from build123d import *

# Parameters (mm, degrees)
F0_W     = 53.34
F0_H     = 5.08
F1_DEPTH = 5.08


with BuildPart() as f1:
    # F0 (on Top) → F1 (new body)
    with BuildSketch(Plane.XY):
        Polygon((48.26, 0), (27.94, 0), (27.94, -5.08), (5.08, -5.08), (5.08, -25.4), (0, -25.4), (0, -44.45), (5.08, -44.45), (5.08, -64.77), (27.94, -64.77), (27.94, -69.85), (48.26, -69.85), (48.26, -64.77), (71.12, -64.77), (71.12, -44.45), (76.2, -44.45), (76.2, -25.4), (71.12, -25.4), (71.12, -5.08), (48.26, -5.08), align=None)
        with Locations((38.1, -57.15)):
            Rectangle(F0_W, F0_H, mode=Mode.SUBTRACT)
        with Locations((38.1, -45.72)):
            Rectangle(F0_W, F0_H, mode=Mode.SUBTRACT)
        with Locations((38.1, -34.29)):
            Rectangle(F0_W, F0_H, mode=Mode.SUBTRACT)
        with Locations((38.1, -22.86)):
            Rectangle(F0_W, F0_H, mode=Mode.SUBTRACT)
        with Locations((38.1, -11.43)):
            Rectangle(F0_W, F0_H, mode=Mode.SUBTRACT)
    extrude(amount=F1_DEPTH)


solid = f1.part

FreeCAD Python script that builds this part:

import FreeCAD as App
import Part
import Sketcher
from FreeCAD import Vector
Q = App.Units.Quantity

doc = App.newDocument("Part")
body = doc.addObject("PartDesign::Body", "Body")

# Sketch on XY plane
sketch1 = body.newObject("Sketcher::SketchObject", "Sketch")
sketch1.AttachmentSupport = (doc.getObject("XY_Plane"), [""])
sketch1.MapMode = "FlatFace"
sketch1.addGeometry(Part.LineSegment(Vector(48, 0, 0), Vector(28, 0, 0)), False)
sketch1.addGeometry(Part.LineSegment(Vector(28, 0, 0), Vector(28, -5, 0)), False)
sketch1.addGeometry(Part.LineSegment(Vector(28, -5, 0), Vector(5, -5, 0)), False)
sketch1.addGeometry(Part.LineSegment(Vector(5, -5, 0), Vector(5, -25, 0)), False)
sketch1.addGeometry(Part.LineSegment(Vector(5, -25, 0), Vector(0, -25, 0)), False)
sketch1.addGeometry(Part.LineSegment(Vector(0, -25, 0), Vector(0, -44, 0)), False)
sketch1.addGeometry(Part.LineSegment(Vector(0, -44, 0), Vector(5, -44, 0)), False)
sketch1.addGeometry(Part.LineSegment(Vector(5, -44, 0), Vector(5, -65, 0)), False)
sketch1.addGeometry(Part.LineSegment(Vector(5, -65, 0), Vector(28, -65, 0)), False)
sketch1.addGeometry(Part.LineSegment(Vector(28, -65, 0), Vector(28, -70, 0)), False)
sketch1.addGeometry(Part.LineSegment(Vector(28, -70, 0), Vector(48, -70, 0)), False)
sketch1.addGeometry(Part.LineSegment(Vector(48, -70, 0), Vector(48, -65, 0)), False)
sketch1.addGeometry(Part.LineSegment(Vector(48, -65, 0), Vector(71, -65, 0)), False)
sketch1.addGeometry(Part.LineSegment(Vector(71, -65, 0), Vector(71, -44, 0)), False)
sketch1.addGeometry(Part.LineSegment(Vector(71, -44, 0), Vector(76, -44, 0)), False)
sketch1.addGeometry(Part.LineSegment(Vector(76, -44, 0), Vector(76, -25, 0)), False)
sketch1.addGeometry(Part.LineSegment(Vector(76, -25, 0), Vector(71, -25, 0)), False)
sketch1.addGeometry(Part.LineSegment(Vector(71, -25, 0), Vector(71, -5, 0)), False)
sketch1.addGeometry(Part.LineSegment(Vector(71, -5, 0), Vector(48, -5, 0)), False)
sketch1.addGeometry(Part.LineSegment(Vector(48, -5, 0), Vector(48, 0, 0)), False)
sketch1.addGeometry(Part.LineSegment(Vector(65, -60, 0), Vector(11, -60, 0)), False)
sketch1.addGeometry(Part.LineSegment(Vector(11, -60, 0), Vector(11, -55, 0)), False)
sketch1.addGeometry(Part.LineSegment(Vector(11, -55, 0), Vector(65, -55, 0)), False)
sketch1.addGeometry(Part.LineSegment(Vector(65, -55, 0), Vector(65, -60, 0)), False)
sketch1.addGeometry(Part.LineSegment(Vector(65, -48, 0), Vector(11, -48, 0)), False)
sketch1.addGeometry(Part.LineSegment(Vector(11, -48, 0), Vector(11, -43, 0)), False)
sketch1.addGeometry(Part.LineSegment(Vector(11, -43, 0), Vector(65, -43, 0)), False)
sketch1.addGeometry(Part.LineSegment(Vector(65, -43, 0), Vector(65, -48, 0)), False)
sketch1.addGeometry(Part.LineSegment(Vector(65, -37, 0), Vector(11, -37, 0)), False)
sketch1.addGeometry(Part.LineSegment(Vector(11, -37, 0), Vector(11, -32, 0)), False)
sketch1.addGeometry(Part.LineSegment(Vector(11, -32, 0), Vector(65, -32, 0)), False)
sketch1.addGeometry(Part.LineSegment(Vector(65, -32, 0), Vector(65, -37, 0)), False)
sketch1.addGeometry(Part.LineSegment(Vector(65, -25, 0), Vector(11, -25, 0)), False)
sketch1.addGeometry(Part.LineSegment(Vector(11, -25, 0), Vector(11, -20, 0)), False)
sketch1.addGeometry(Part.LineSegment(Vector(11, -20, 0), Vector(65, -20, 0)), False)
sketch1.addGeometry(Part.LineSegment(Vector(65, -20, 0), Vector(65, -25, 0)), False)
sketch1.addGeometry(Part.LineSegment(Vector(65, -14, 0), Vector(11, -14, 0)), False)
sketch1.addGeometry(Part.LineSegment(Vector(11, -14, 0), Vector(11, -9, 0)), False)
sketch1.addGeometry(Part.LineSegment(Vector(11, -9, 0), Vector(65, -9, 0)), False)
sketch1.addGeometry(Part.LineSegment(Vector(65, -9, 0), Vector(65, -14, 0)), False)
sketch1.addConstraint(Sketcher.Constraint("Coincident", 0, 2, 1, 1))
sketch1.addConstraint(Sketcher.Constraint("Coincident", 1, 2, 2, 1))
sketch1.addConstraint(Sketcher.Constraint("Coincident", 2, 2, 3, 1))
sketch1.addConstraint(Sketcher.Constraint("Coincident", 3, 2, 4, 1))
sketch1.addConstraint(Sketcher.Constraint("Coincident", 4, 2, 5, 1))
sketch1.addConstraint(Sketcher.Constraint("Coincident", 5, 2, 6, 1))
sketch1.addConstraint(Sketcher.Constraint("Coincident", 6, 2, 7, 1))
sketch1.addConstraint(Sketcher.Constraint("Coincident", 7, 2, 8, 1))
sketch1.addConstraint(Sketcher.Constraint("Coincident", 8, 2, 9, 1))
sketch1.addConstraint(Sketcher.Constraint("Coincident", 9, 2, 10, 1))
sketch1.addConstraint(Sketcher.Constraint("Coincident", 10, 2, 11, 1))
sketch1.addConstraint(Sketcher.Constraint("Coincident", 11, 2, 12, 1))
sketch1.addConstraint(Sketcher.Constraint("Coincident", 12, 2, 13, 1))
sketch1.addConstraint(Sketcher.Constraint("Coincident", 13, 2, 14, 1))
sketch1.addConstraint(Sketcher.Constraint("Coincident", 14, 2, 15, 1))
sketch1.addConstraint(Sketcher.Constraint("Coincident", 15, 2, 16, 1))
sketch1.addConstraint(Sketcher.Constraint("Coincident", 16, 2, 17, 1))
sketch1.addConstraint(Sketcher.Constraint("Coincident", 17, 2, 18, 1))
sketch1.addConstraint(Sketcher.Constraint("Coincident", 18, 2, 19, 1))
sketch1.addConstraint(Sketcher.Constraint("Coincident", 19, 2, 0, 1))
sketch1.addConstraint(Sketcher.Constraint("Coincident", 20, 2, 21, 1))
sketch1.addConstraint(Sketcher.Constraint("Coincident", 21, 2, 22, 1))
sketch1.addConstraint(Sketcher.Constraint("Coincident", 22, 2, 23, 1))
sketch1.addConstraint(Sketcher.Constraint("Coincident", 23, 2, 20, 1))
sketch1.addConstraint(Sketcher.Constraint("Coincident", 24, 2, 25, 1))
sketch1.addConstraint(Sketcher.Constraint("Coincident", 25, 2, 26, 1))
sketch1.addConstraint(Sketcher.Constraint("Coincident", 26, 2, 27, 1))
sketch1.addConstraint(Sketcher.Constraint("Coincident", 27, 2, 24, 1))
sketch1.addConstraint(Sketcher.Constraint("Coincident", 28, 2, 29, 1))
sketch1.addConstraint(Sketcher.Constraint("Coincident", 29, 2, 30, 1))
sketch1.addConstraint(Sketcher.Constraint("Coincident", 30, 2, 31, 1))
sketch1.addConstraint(Sketcher.Constraint("Coincident", 31, 2, 28, 1))
sketch1.addConstraint(Sketcher.Constraint("Coincident", 32, 2, 33, 1))
sketch1.addConstraint(Sketcher.Constraint("Coincident", 33, 2, 34, 1))
sketch1.addConstraint(Sketcher.Constraint("Coincident", 34, 2, 35, 1))
sketch1.addConstraint(Sketcher.Constraint("Coincident", 35, 2, 32, 1))
sketch1.addConstraint(Sketcher.Constraint("Coincident", 36, 2, 37, 1))
sketch1.addConstraint(Sketcher.Constraint("Coincident", 37, 2, 38, 1))
sketch1.addConstraint(Sketcher.Constraint("Coincident", 38, 2, 39, 1))
sketch1.addConstraint(Sketcher.Constraint("Coincident", 39, 2, 36, 1))
sketch1.addConstraint(Sketcher.Constraint("Horizontal", 0))
sketch1.addConstraint(Sketcher.Constraint("Vertical", 1))
sketch1.addConstraint(Sketcher.Constraint("Horizontal", 2))
sketch1.addConstraint(Sketcher.Constraint("Vertical", 3))
sketch1.addConstraint(Sketcher.Constraint("Horizontal", 4))
sketch1.addConstraint(Sketcher.Constraint("Vertical", 5))
sketch1.addConstraint(Sketcher.Constraint("Horizontal", 6))
sketch1.addConstraint(Sketcher.Constraint("Vertical", 7))
sketch1.addConstraint(Sketcher.Constraint("Horizontal", 8))
sketch1.addConstraint(Sketcher.Constraint("Vertical", 9))
sketch1.addConstraint(Sketcher.Constraint("Horizontal", 10))
sketch1.addConstraint(Sketcher.Constraint("Vertical", 11))
sketch1.addConstraint(Sketcher.Constraint("Horizontal", 12))
sketch1.addConstraint(Sketcher.Constraint("Vertical", 13))
sketch1.addConstraint(Sketcher.Constraint("Horizontal", 14))
sketch1.addConstraint(Sketcher.Constraint("Vertical", 15))
sketch1.addConstraint(Sketcher.Constraint("Horizontal", 16))
sketch1.addConstraint(Sketcher.Constraint("Vertical", 17))
sketch1.addConstraint(Sketcher.Constraint("Horizontal", 18))
sketch1.addConstraint(Sketcher.Constraint("Vertical", 19))
sketch1.addConstraint(Sketcher.Constraint("Horizontal", 20))
sketch1.addConstraint(Sketcher.Constraint("Vertical", 21))
sketch1.addConstraint(Sketcher.Constraint("Horizontal", 22))
sketch1.addConstraint(Sketcher.Constraint("Vertical", 23))
sketch1.addConstraint(Sketcher.Constraint("Horizontal", 24))
sketch1.addConstraint(Sketcher.Constraint("Vertical", 25))
sketch1.addConstraint(Sketcher.Constraint("Horizontal", 26))
sketch1.addConstraint(Sketcher.Constraint("Vertical", 27))
sketch1.addConstraint(Sketcher.Constraint("Horizontal", 28))
sketch1.addConstraint(Sketcher.Constraint("Vertical", 29))
sketch1.addConstraint(Sketcher.Constraint("Horizontal", 30))
sketch1.addConstraint(Sketcher.Constraint("Vertical", 31))
sketch1.addConstraint(Sketcher.Constraint("Horizontal", 32))
sketch1.addConstraint(Sketcher.Constraint("Vertical", 33))
sketch1.addConstraint(Sketcher.Constraint("Horizontal", 34))
sketch1.addConstraint(Sketcher.Constraint("Vertical", 35))
sketch1.addConstraint(Sketcher.Constraint("Horizontal", 36))
sketch1.addConstraint(Sketcher.Constraint("Vertical", 37))
sketch1.addConstraint(Sketcher.Constraint("Horizontal", 38))
sketch1.addConstraint(Sketcher.Constraint("Vertical", 39))
sketch1.addConstraint(Sketcher.Constraint("PointOnObject", 0, 2, -1))
sketch1.addConstraint(Sketcher.Constraint("PointOnObject", 4, 2, -2))
sketch1.addConstraint(Sketcher.Constraint("Horizontal", 8, 2, 11, 2))
sketch1.addConstraint(Sketcher.Constraint("Horizontal", 6, 2, 13, 2))
sketch1.addConstraint(Sketcher.Constraint("Horizontal", 4, 2, 15, 2))
sketch1.addConstraint(Sketcher.Constraint("Horizontal", 2, 2, 17, 2))
sketch1.addConstraint(Sketcher.Constraint("Horizontal", 16, 2, 32, 2))
sketch1.addConstraint(Sketcher.Constraint("Vertical", 3, 2, 6, 2))
sketch1.addConstraint(Sketcher.Constraint("Vertical", 1, 2, 8, 2))
sketch1.addConstraint(Sketcher.Constraint("Vertical", 13, 2, 16, 2))
sketch1.addConstraint(Sketcher.Constraint("Vertical", 11, 2, 18, 2))
sketch1.addConstraint(Sketcher.Constraint("Vertical", 21, 2, 24, 2))
sketch1.addConstraint(Sketcher.Constraint("Vertical", 23, 2, 26, 2))
sketch1.addConstraint(Sketcher.Constraint("Vertical", 25, 2, 28, 2))
sketch1.addConstraint(Sketcher.Constraint("Vertical", 27, 2, 30, 2))
sketch1.addConstraint(Sketcher.Constraint("Vertical", 29, 2, 32, 2))
sketch1.addConstraint(Sketcher.Constraint("Vertical", 31, 2, 34, 2))
sketch1.addConstraint(Sketcher.Constraint("Vertical", 33, 2, 36, 2))
sketch1.addConstraint(Sketcher.Constraint("Vertical", 35, 2, 38, 2))
sketch1.addConstraint(Sketcher.Constraint("Equal", 8, 12))
sketch1.addConstraint(Sketcher.Constraint("Equal", 6, 14))
sketch1.addConstraint(Sketcher.Constraint("Equal", 16, 1))
sketch1.addConstraint(Sketcher.Constraint("Equal", 10, 3))
sketch1.addConstraint(Sketcher.Constraint("Equal", 3, 7))
sketch1.addConstraint(Sketcher.Constraint("Equal", 1, 9))
sketch1.addConstraint(Sketcher.Constraint("Equal", 19, 21))
sketch1.addConstraint(Sketcher.Constraint("Equal", 23, 25))
sketch1.addConstraint(Sketcher.Constraint("Equal", 27, 29))
sketch1.addConstraint(Sketcher.Constraint("Equal", 31, 33))
sketch1.addConstraint(Sketcher.Constraint("Equal", 35, 37))
sketch1.addConstraint(Sketcher.Constraint("DistanceX", 0, 2, 0, 1, Q("0.8 in")))
sketch1.addConstraint(Sketcher.Constraint("DistanceX", 2, 2, 2, 1, Q("0.9 in")))
sketch1.addConstraint(Sketcher.Constraint("DistanceX", 4, 2, 4, 1, Q("0.2 in")))
sketch1.addConstraint(Sketcher.Constraint("DistanceX", 20, 2, 20, 1, Q("2.1 in")))
sketch1.addConstraint(Sketcher.Constraint("DistanceY", 5, 2, 5, 1, Q("0.75 in")))
sketch1.addConstraint(Sketcher.Constraint("DistanceY", 24, 2, -1, 1, Q("1.9 in")))
sketch1.addConstraint(Sketcher.Constraint("DistanceY", 7, 2, 20, 2, Q("0.2 in")))
sketch1.addConstraint(Sketcher.Constraint("DistanceY", 6, 2, 28, 2, Q("0.3 in")))
sketch1.addConstraint(Sketcher.Constraint("DistanceX", -1, 1, 20, 2, Q("0.45 in")))
sketch1.addConstraint(Sketcher.Constraint("DistanceY", 36, 2, -1, 1, Q("0.55 in")))
pad1 = body.newObject("PartDesign::Pad", "Pad")
pad1.Profile = sketch1
pad1.Length = Q("0.2 in")

doc.recompute()
